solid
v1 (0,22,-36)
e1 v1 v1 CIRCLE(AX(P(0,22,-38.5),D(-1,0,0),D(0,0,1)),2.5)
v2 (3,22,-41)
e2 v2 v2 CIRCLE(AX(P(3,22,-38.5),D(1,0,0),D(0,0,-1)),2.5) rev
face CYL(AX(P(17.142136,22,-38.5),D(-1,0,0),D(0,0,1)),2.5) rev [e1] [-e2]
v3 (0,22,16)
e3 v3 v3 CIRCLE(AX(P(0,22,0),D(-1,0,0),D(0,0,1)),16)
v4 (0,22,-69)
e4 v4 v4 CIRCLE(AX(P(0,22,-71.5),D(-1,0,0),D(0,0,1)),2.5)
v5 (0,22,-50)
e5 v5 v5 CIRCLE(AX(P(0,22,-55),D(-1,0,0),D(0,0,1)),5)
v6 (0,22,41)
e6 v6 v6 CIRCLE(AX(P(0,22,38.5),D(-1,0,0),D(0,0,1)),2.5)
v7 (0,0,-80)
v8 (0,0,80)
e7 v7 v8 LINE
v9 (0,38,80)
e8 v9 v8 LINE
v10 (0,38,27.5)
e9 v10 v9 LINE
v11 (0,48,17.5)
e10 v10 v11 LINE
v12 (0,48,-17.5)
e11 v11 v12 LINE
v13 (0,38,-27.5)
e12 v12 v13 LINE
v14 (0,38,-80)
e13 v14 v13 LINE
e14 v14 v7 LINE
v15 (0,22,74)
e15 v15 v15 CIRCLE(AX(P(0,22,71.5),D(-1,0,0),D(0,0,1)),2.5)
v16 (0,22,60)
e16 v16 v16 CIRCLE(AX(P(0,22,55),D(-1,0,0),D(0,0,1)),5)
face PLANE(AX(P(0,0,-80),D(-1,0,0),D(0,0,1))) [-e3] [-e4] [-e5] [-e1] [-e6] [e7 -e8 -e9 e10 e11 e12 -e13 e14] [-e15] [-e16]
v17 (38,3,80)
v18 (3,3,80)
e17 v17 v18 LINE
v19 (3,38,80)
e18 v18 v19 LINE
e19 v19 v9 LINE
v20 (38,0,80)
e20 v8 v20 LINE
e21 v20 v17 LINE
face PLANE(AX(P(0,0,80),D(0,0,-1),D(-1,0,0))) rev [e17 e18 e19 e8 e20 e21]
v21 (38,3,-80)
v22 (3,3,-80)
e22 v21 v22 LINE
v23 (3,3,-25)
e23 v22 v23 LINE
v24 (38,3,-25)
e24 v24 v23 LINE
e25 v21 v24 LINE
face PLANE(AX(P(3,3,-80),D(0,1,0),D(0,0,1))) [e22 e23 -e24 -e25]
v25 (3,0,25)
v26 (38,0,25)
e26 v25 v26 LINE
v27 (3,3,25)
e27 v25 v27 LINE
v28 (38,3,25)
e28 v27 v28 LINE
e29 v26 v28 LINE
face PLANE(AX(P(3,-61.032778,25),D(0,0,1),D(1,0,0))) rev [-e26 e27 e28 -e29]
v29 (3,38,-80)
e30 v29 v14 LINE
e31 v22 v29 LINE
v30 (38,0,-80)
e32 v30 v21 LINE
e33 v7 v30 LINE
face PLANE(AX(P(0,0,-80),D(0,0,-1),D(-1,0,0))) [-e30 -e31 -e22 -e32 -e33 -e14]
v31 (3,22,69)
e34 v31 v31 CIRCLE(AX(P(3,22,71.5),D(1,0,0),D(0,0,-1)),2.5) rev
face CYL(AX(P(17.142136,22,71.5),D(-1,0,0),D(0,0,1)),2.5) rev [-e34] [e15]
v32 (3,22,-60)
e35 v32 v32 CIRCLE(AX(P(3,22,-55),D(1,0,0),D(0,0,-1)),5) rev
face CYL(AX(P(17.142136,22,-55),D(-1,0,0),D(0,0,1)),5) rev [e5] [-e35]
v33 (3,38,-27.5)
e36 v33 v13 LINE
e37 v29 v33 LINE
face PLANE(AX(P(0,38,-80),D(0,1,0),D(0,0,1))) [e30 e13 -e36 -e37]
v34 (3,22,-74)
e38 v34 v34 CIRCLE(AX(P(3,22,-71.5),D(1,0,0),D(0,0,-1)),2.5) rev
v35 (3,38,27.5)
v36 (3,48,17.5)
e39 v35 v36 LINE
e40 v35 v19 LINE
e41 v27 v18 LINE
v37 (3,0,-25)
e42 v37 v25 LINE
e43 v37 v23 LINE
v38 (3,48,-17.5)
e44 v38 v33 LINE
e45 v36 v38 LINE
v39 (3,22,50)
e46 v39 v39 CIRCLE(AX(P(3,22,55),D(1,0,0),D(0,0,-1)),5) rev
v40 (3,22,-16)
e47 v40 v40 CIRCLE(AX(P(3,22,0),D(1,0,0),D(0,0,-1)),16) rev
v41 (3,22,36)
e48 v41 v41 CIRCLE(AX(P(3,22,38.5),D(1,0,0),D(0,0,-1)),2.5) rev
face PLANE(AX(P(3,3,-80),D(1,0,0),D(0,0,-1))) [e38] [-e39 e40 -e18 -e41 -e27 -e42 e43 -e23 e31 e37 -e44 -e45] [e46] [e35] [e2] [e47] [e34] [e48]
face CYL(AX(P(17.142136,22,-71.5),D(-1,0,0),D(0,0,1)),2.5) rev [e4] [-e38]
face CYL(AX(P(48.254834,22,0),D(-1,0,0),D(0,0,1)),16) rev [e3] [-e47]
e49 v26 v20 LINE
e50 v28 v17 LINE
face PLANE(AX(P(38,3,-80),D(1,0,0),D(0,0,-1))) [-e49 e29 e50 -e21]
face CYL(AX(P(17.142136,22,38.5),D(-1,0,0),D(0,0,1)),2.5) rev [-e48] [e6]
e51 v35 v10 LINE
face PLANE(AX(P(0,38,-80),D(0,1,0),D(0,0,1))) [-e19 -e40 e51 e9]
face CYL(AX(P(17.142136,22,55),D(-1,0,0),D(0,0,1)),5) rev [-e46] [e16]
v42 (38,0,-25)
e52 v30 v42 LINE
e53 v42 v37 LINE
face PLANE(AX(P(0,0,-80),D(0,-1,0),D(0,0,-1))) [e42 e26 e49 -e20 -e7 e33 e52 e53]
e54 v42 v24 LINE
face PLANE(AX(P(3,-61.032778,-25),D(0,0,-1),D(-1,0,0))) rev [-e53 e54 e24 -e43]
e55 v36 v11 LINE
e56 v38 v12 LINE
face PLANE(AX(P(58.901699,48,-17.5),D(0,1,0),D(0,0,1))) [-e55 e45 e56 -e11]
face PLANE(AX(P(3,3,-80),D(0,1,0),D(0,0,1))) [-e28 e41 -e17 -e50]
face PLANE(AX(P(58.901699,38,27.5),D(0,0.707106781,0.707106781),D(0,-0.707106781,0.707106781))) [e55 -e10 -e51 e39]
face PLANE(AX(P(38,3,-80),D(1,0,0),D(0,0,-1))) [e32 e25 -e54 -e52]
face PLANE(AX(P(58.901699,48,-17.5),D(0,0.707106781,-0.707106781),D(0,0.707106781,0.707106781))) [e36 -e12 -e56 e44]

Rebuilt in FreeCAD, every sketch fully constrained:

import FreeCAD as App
import Part
import Sketcher
from FreeCAD import Vector

doc = App.newDocument("Part")
params = doc.addObject("Spreadsheet::Sheet", "Params")
for row, (alias, value) in enumerate([
    ("sketch1_width", "38 mm"),
    ("sketch1_width2", "35 mm"),
    ("pad1_length", "80 mm"),
    ("pad1_length2", "80 mm"),
    ("sketch2_width", "35 mm"),
    ("sketch2_height", "50 mm"),
    ("pocket1_length", "3 mm"),
    ("sketch3_diameter", "5 mm"),
    ("sketch3_diameter2", "10 mm"),
    ("pocket2_length", "3 mm"),
    ("sketch4_height", "35 mm"),
    ("sketch4_height2", "55 mm"),
    ("pad2_length", "3 mm"),
    ("sketch5_diameter", "32 mm"),
    ("pocket3_length", "3 mm"),
], start=1):
    params.set(f"A{row}", alias)
    params.set(f"B{row}", "=" + value)
    params.setAlias(f"B{row}", alias)

body = doc.addObject("PartDesign::Body", "Body")

sketch1 = body.newObject("Sketcher::SketchObject", "Sketch")
sketch1.AttachmentSupport = (doc.getObject("XY_Plane"), [""])
sketch1.MapMode = "FlatFace"
sketch1.addGeometry([
    Part.LineSegment(Vector(0, 38, 0), Vector(0, 0, 0)),
    Part.LineSegment(Vector(0, 0, 0), Vector(38, 0, 0)),
    Part.LineSegment(Vector(38, 0, 0), Vector(38, 3, 0)),
    Part.LineSegment(Vector(38, 3, 0), Vector(3, 3, 0)),
    Part.LineSegment(Vector(3, 3, 0), Vector(3, 38, 0)),
    Part.LineSegment(Vector(3, 38, 0), Vector(0, 38, 0)),
], False)
sketch1.addConstraint([
    Sketcher.Constraint("Coincident", 0, 2, 1, 1),
    Sketcher.Constraint("Coincident", 1, 2, 2, 1),
    Sketcher.Constraint("Coincident", 2, 2, 3, 1),
    Sketcher.Constraint("Coincident", 3, 2, 4, 1),
    Sketcher.Constraint("Coincident", 4, 2, 5, 1),
    Sketcher.Constraint("Coincident", 5, 2, 0, 1),
    Sketcher.Constraint("Vertical", 0),
    Sketcher.Constraint("Horizontal", 1),
    Sketcher.Constraint("Vertical", 2),
    Sketcher.Constraint("Horizontal", 3),
    Sketcher.Constraint("Vertical", 4),
    Sketcher.Constraint("Horizontal", 5),
    Sketcher.Constraint("Coincident", 0, 2, -1, 1),
    Sketcher.Constraint("Equal", 1, 0),
    Sketcher.Constraint("Equal", 5, 2),
    Sketcher.Constraint("DistanceX", 1, 1, 1, 2, 38.0),
    Sketcher.Constraint("DistanceX", 3, 2, 3, 1, 35.0),
])
sketch1.setExpression("Constraints[15]", "Params.sketch1_width")
sketch1.setExpression("Constraints[16]", "Params.sketch1_width2")
pad1 = body.newObject("PartDesign::Pad", "Pad")
pad1.Profile = sketch1
pad1.Type = "TwoLengths"
pad1.setExpression("Length", "Params.pad1_length")
pad1.setExpression("Length2", "Params.pad1_length2")

sketch2 = body.newObject("Sketcher::SketchObject", "Sketch001")
sketch2.AttachmentSupport = (doc.getObject("XZ_Plane"), [""])
sketch2.MapMode = "FlatFace"
sketch2.AttachmentOffset = App.Placement(Vector(0, 0, -3), App.Rotation())
sketch2.addGeometry([
    Part.LineSegment(Vector(3, -25, 0), Vector(3, 25, 0)),
    Part.LineSegment(Vector(3, 25, 0), Vector(38, 25, 0)),
    Part.LineSegment(Vector(38, 25, 0), Vector(38, -25, 0)),
    Part.LineSegment(Vector(38, -25, 0), Vector(3, -25, 0)),
], False)
sketch2.addConstraint([
    Sketcher.Constraint("Coincident", 0, 2, 1, 1),
    Sketcher.Constraint("Coincident", 1, 2, 2, 1),
    Sketcher.Constraint("Coincident", 2, 2, 3, 1),
    Sketcher.Constraint("Coincident", 3, 2, 0, 1),
    Sketcher.Constraint("Vertical", 0),
    Sketcher.Constraint("Horizontal", 1),
    Sketcher.Constraint("Vertical", 2),
    Sketcher.Constraint("Horizontal", 3),
    Sketcher.Constraint("DistanceX", 1, 1, 1, 2, 35.0),
    Sketcher.Constraint("DistanceY", 0, 1, 0, 2, 50.0),
    Sketcher.Constraint("DistanceX", -1, 1, 0, 2, 3.0),
    Sketcher.Constraint("DistanceY", -1, 1, 0, 2, 25.0),
])
sketch2.setExpression("Constraints[8]", "Params.sketch2_width")
sketch2.setExpression("Constraints[9]", "Params.sketch2_height")
pocket1 = body.newObject("PartDesign::Pocket", "Pocket")
pocket1.Profile = sketch2
pocket1.setExpression("Length", "Params.pocket1_length")
pocket1.Reversed = True

sketch3 = body.newObject("Sketcher::SketchObject", "Sketch002")
sketch3.AttachmentSupport = (doc.getObject("YZ_Plane"), [""])
sketch3.MapMode = "FlatFace"
sketch3.addGeometry([
    Part.Circle(Vector(22, 71.5, 0), Vector(0, 0, 1), 2.5),
    Part.Circle(Vector(22, 55, 0), Vector(0, 0, 1), 5),
    Part.Circle(Vector(22, 38.5, 0), Vector(0, 0, 1), 2.5),
    Part.Circle(Vector(22, -38.5, 0), Vector(0, 0, 1), 2.5),
    Part.Circle(Vector(22, -55, 0), Vector(0, 0, 1), 5),
    Part.Circle(Vector(22, -71.5, 0), Vector(0, 0, 1), 2.5),
], False)
sketch3.addConstraint([
    Sketcher.Constraint("Equal", 0, 2),
    Sketcher.Constraint("Equal", 2, 3),
    Sketcher.Constraint("Equal", 1, 4),
    Sketcher.Constraint("Equal", 3, 5),
    Sketcher.Constraint("Symmetric", 2, 3, 3, 3, -1),
    Sketcher.Constraint("Symmetric", 1, 3, 4, 3, -1),
    Sketcher.Constraint("Symmetric", 0, 3, 5, 3, -1),
    Sketcher.Constraint("Vertical", 0, 3, 1, 3),
    Sketcher.Constraint("Vertical", 1, 3, 2, 3),
    Sketcher.Constraint("Diameter", 0, 5.0),
    Sketcher.Constraint("Diameter", 1, 10.0),
    Sketcher.Constraint("DistanceX", -1, 1, 0, 3, 22.0),
    Sketcher.Constraint("DistanceY", -1, 1, 1, 3, 55.0),
    Sketcher.Constraint("DistanceY", 2, 3, 0, 3, 33.0),
    Sketcher.Constraint("DistanceY", 3, 3, 2, 3, 77.0),
])
sketch3.setExpression("Constraints[9]", "Params.sketch3_diameter")
sketch3.setExpression("Constraints[10]", "Params.sketch3_diameter2")
pocket2 = body.newObject("PartDesign::Pocket", "Pocket001")
pocket2.Profile = sketch3
pocket2.setExpression("Length", "Params.pocket2_length")
pocket2.Reversed = True

sketch4 = body.newObject("Sketcher::SketchObject", "Sketch003")
sketch4.AttachmentSupport = (doc.getObject("YZ_Plane"), [""])
sketch4.MapMode = "FlatFace"
sketch4.addGeometry([
    Part.LineSegment(Vector(38, 28, 0), Vector(48, 18, 0)),
    Part.LineSegment(Vector(48, 18, 0), Vector(48, -18, 0)),
    Part.LineSegment(Vector(48, -18, 0), Vector(38, -28, 0)),
    Part.LineSegment(Vector(38, -28, 0), Vector(38, 28, 0)),
], False)
sketch4.addConstraint([
    Sketcher.Constraint("Coincident", 0, 2, 1, 1),
    Sketcher.Constraint("Coincident", 1, 2, 2, 1),
    Sketcher.Constraint("Coincident", 2, 2, 3, 1),
    Sketcher.Constraint("Coincident", 3, 2, 0, 1),
    Sketcher.Constraint("Vertical", 1),
    Sketcher.Constraint("Vertical", 3),
    Sketcher.Constraint("Perpendicular", 0, 2),
    Sketcher.Constraint("Equal", 0, 2),
    Sketcher.Constraint("DistanceY", 1, 2, 1, 1, 35.0),
    Sketcher.Constraint("DistanceY", 3, 1, 3, 2, 55.0),
    Sketcher.Constraint("DistanceX", -1, 1, 0, 2, 48.0),
    Sketcher.Constraint("DistanceY", -1, 1, 0, 2, 17.5),
])
sketch4.setExpression("Constraints[8]", "Params.sketch4_height")
sketch4.setExpression("Constraints[9]", "Params.sketch4_height2")
pad2 = body.newObject("PartDesign::Pad", "Pad001")
pad2.Profile = sketch4
pad2.setExpression("Length", "Params.pad2_length")

sketch5 = body.newObject("Sketcher::SketchObject", "Sketch004")
sketch5.AttachmentSupport = (doc.getObject("YZ_Plane"), [""])
sketch5.MapMode = "FlatFace"
sketch5.addGeometry(Part.Circle(Vector(22, 0, 0), Vector(0, 0, 1), 16), False)
sketch5.addConstraint([
    Sketcher.Constraint("PointOnObject", 0, 3, -1),
    Sketcher.Constraint("Diameter", 0, 32.0),
    Sketcher.Constraint("DistanceX", -1, 1, 0, 3, 22.0),
])
sketch5.setExpression("Constraints[1]", "Params.sketch5_diameter")
pocket3 = body.newObject("PartDesign::Pocket", "Pocket002")
pocket3.Profile = sketch5
pocket3.setExpression("Length", "Params.pocket3_length")
pocket3.Reversed = True

doc.recompute()
